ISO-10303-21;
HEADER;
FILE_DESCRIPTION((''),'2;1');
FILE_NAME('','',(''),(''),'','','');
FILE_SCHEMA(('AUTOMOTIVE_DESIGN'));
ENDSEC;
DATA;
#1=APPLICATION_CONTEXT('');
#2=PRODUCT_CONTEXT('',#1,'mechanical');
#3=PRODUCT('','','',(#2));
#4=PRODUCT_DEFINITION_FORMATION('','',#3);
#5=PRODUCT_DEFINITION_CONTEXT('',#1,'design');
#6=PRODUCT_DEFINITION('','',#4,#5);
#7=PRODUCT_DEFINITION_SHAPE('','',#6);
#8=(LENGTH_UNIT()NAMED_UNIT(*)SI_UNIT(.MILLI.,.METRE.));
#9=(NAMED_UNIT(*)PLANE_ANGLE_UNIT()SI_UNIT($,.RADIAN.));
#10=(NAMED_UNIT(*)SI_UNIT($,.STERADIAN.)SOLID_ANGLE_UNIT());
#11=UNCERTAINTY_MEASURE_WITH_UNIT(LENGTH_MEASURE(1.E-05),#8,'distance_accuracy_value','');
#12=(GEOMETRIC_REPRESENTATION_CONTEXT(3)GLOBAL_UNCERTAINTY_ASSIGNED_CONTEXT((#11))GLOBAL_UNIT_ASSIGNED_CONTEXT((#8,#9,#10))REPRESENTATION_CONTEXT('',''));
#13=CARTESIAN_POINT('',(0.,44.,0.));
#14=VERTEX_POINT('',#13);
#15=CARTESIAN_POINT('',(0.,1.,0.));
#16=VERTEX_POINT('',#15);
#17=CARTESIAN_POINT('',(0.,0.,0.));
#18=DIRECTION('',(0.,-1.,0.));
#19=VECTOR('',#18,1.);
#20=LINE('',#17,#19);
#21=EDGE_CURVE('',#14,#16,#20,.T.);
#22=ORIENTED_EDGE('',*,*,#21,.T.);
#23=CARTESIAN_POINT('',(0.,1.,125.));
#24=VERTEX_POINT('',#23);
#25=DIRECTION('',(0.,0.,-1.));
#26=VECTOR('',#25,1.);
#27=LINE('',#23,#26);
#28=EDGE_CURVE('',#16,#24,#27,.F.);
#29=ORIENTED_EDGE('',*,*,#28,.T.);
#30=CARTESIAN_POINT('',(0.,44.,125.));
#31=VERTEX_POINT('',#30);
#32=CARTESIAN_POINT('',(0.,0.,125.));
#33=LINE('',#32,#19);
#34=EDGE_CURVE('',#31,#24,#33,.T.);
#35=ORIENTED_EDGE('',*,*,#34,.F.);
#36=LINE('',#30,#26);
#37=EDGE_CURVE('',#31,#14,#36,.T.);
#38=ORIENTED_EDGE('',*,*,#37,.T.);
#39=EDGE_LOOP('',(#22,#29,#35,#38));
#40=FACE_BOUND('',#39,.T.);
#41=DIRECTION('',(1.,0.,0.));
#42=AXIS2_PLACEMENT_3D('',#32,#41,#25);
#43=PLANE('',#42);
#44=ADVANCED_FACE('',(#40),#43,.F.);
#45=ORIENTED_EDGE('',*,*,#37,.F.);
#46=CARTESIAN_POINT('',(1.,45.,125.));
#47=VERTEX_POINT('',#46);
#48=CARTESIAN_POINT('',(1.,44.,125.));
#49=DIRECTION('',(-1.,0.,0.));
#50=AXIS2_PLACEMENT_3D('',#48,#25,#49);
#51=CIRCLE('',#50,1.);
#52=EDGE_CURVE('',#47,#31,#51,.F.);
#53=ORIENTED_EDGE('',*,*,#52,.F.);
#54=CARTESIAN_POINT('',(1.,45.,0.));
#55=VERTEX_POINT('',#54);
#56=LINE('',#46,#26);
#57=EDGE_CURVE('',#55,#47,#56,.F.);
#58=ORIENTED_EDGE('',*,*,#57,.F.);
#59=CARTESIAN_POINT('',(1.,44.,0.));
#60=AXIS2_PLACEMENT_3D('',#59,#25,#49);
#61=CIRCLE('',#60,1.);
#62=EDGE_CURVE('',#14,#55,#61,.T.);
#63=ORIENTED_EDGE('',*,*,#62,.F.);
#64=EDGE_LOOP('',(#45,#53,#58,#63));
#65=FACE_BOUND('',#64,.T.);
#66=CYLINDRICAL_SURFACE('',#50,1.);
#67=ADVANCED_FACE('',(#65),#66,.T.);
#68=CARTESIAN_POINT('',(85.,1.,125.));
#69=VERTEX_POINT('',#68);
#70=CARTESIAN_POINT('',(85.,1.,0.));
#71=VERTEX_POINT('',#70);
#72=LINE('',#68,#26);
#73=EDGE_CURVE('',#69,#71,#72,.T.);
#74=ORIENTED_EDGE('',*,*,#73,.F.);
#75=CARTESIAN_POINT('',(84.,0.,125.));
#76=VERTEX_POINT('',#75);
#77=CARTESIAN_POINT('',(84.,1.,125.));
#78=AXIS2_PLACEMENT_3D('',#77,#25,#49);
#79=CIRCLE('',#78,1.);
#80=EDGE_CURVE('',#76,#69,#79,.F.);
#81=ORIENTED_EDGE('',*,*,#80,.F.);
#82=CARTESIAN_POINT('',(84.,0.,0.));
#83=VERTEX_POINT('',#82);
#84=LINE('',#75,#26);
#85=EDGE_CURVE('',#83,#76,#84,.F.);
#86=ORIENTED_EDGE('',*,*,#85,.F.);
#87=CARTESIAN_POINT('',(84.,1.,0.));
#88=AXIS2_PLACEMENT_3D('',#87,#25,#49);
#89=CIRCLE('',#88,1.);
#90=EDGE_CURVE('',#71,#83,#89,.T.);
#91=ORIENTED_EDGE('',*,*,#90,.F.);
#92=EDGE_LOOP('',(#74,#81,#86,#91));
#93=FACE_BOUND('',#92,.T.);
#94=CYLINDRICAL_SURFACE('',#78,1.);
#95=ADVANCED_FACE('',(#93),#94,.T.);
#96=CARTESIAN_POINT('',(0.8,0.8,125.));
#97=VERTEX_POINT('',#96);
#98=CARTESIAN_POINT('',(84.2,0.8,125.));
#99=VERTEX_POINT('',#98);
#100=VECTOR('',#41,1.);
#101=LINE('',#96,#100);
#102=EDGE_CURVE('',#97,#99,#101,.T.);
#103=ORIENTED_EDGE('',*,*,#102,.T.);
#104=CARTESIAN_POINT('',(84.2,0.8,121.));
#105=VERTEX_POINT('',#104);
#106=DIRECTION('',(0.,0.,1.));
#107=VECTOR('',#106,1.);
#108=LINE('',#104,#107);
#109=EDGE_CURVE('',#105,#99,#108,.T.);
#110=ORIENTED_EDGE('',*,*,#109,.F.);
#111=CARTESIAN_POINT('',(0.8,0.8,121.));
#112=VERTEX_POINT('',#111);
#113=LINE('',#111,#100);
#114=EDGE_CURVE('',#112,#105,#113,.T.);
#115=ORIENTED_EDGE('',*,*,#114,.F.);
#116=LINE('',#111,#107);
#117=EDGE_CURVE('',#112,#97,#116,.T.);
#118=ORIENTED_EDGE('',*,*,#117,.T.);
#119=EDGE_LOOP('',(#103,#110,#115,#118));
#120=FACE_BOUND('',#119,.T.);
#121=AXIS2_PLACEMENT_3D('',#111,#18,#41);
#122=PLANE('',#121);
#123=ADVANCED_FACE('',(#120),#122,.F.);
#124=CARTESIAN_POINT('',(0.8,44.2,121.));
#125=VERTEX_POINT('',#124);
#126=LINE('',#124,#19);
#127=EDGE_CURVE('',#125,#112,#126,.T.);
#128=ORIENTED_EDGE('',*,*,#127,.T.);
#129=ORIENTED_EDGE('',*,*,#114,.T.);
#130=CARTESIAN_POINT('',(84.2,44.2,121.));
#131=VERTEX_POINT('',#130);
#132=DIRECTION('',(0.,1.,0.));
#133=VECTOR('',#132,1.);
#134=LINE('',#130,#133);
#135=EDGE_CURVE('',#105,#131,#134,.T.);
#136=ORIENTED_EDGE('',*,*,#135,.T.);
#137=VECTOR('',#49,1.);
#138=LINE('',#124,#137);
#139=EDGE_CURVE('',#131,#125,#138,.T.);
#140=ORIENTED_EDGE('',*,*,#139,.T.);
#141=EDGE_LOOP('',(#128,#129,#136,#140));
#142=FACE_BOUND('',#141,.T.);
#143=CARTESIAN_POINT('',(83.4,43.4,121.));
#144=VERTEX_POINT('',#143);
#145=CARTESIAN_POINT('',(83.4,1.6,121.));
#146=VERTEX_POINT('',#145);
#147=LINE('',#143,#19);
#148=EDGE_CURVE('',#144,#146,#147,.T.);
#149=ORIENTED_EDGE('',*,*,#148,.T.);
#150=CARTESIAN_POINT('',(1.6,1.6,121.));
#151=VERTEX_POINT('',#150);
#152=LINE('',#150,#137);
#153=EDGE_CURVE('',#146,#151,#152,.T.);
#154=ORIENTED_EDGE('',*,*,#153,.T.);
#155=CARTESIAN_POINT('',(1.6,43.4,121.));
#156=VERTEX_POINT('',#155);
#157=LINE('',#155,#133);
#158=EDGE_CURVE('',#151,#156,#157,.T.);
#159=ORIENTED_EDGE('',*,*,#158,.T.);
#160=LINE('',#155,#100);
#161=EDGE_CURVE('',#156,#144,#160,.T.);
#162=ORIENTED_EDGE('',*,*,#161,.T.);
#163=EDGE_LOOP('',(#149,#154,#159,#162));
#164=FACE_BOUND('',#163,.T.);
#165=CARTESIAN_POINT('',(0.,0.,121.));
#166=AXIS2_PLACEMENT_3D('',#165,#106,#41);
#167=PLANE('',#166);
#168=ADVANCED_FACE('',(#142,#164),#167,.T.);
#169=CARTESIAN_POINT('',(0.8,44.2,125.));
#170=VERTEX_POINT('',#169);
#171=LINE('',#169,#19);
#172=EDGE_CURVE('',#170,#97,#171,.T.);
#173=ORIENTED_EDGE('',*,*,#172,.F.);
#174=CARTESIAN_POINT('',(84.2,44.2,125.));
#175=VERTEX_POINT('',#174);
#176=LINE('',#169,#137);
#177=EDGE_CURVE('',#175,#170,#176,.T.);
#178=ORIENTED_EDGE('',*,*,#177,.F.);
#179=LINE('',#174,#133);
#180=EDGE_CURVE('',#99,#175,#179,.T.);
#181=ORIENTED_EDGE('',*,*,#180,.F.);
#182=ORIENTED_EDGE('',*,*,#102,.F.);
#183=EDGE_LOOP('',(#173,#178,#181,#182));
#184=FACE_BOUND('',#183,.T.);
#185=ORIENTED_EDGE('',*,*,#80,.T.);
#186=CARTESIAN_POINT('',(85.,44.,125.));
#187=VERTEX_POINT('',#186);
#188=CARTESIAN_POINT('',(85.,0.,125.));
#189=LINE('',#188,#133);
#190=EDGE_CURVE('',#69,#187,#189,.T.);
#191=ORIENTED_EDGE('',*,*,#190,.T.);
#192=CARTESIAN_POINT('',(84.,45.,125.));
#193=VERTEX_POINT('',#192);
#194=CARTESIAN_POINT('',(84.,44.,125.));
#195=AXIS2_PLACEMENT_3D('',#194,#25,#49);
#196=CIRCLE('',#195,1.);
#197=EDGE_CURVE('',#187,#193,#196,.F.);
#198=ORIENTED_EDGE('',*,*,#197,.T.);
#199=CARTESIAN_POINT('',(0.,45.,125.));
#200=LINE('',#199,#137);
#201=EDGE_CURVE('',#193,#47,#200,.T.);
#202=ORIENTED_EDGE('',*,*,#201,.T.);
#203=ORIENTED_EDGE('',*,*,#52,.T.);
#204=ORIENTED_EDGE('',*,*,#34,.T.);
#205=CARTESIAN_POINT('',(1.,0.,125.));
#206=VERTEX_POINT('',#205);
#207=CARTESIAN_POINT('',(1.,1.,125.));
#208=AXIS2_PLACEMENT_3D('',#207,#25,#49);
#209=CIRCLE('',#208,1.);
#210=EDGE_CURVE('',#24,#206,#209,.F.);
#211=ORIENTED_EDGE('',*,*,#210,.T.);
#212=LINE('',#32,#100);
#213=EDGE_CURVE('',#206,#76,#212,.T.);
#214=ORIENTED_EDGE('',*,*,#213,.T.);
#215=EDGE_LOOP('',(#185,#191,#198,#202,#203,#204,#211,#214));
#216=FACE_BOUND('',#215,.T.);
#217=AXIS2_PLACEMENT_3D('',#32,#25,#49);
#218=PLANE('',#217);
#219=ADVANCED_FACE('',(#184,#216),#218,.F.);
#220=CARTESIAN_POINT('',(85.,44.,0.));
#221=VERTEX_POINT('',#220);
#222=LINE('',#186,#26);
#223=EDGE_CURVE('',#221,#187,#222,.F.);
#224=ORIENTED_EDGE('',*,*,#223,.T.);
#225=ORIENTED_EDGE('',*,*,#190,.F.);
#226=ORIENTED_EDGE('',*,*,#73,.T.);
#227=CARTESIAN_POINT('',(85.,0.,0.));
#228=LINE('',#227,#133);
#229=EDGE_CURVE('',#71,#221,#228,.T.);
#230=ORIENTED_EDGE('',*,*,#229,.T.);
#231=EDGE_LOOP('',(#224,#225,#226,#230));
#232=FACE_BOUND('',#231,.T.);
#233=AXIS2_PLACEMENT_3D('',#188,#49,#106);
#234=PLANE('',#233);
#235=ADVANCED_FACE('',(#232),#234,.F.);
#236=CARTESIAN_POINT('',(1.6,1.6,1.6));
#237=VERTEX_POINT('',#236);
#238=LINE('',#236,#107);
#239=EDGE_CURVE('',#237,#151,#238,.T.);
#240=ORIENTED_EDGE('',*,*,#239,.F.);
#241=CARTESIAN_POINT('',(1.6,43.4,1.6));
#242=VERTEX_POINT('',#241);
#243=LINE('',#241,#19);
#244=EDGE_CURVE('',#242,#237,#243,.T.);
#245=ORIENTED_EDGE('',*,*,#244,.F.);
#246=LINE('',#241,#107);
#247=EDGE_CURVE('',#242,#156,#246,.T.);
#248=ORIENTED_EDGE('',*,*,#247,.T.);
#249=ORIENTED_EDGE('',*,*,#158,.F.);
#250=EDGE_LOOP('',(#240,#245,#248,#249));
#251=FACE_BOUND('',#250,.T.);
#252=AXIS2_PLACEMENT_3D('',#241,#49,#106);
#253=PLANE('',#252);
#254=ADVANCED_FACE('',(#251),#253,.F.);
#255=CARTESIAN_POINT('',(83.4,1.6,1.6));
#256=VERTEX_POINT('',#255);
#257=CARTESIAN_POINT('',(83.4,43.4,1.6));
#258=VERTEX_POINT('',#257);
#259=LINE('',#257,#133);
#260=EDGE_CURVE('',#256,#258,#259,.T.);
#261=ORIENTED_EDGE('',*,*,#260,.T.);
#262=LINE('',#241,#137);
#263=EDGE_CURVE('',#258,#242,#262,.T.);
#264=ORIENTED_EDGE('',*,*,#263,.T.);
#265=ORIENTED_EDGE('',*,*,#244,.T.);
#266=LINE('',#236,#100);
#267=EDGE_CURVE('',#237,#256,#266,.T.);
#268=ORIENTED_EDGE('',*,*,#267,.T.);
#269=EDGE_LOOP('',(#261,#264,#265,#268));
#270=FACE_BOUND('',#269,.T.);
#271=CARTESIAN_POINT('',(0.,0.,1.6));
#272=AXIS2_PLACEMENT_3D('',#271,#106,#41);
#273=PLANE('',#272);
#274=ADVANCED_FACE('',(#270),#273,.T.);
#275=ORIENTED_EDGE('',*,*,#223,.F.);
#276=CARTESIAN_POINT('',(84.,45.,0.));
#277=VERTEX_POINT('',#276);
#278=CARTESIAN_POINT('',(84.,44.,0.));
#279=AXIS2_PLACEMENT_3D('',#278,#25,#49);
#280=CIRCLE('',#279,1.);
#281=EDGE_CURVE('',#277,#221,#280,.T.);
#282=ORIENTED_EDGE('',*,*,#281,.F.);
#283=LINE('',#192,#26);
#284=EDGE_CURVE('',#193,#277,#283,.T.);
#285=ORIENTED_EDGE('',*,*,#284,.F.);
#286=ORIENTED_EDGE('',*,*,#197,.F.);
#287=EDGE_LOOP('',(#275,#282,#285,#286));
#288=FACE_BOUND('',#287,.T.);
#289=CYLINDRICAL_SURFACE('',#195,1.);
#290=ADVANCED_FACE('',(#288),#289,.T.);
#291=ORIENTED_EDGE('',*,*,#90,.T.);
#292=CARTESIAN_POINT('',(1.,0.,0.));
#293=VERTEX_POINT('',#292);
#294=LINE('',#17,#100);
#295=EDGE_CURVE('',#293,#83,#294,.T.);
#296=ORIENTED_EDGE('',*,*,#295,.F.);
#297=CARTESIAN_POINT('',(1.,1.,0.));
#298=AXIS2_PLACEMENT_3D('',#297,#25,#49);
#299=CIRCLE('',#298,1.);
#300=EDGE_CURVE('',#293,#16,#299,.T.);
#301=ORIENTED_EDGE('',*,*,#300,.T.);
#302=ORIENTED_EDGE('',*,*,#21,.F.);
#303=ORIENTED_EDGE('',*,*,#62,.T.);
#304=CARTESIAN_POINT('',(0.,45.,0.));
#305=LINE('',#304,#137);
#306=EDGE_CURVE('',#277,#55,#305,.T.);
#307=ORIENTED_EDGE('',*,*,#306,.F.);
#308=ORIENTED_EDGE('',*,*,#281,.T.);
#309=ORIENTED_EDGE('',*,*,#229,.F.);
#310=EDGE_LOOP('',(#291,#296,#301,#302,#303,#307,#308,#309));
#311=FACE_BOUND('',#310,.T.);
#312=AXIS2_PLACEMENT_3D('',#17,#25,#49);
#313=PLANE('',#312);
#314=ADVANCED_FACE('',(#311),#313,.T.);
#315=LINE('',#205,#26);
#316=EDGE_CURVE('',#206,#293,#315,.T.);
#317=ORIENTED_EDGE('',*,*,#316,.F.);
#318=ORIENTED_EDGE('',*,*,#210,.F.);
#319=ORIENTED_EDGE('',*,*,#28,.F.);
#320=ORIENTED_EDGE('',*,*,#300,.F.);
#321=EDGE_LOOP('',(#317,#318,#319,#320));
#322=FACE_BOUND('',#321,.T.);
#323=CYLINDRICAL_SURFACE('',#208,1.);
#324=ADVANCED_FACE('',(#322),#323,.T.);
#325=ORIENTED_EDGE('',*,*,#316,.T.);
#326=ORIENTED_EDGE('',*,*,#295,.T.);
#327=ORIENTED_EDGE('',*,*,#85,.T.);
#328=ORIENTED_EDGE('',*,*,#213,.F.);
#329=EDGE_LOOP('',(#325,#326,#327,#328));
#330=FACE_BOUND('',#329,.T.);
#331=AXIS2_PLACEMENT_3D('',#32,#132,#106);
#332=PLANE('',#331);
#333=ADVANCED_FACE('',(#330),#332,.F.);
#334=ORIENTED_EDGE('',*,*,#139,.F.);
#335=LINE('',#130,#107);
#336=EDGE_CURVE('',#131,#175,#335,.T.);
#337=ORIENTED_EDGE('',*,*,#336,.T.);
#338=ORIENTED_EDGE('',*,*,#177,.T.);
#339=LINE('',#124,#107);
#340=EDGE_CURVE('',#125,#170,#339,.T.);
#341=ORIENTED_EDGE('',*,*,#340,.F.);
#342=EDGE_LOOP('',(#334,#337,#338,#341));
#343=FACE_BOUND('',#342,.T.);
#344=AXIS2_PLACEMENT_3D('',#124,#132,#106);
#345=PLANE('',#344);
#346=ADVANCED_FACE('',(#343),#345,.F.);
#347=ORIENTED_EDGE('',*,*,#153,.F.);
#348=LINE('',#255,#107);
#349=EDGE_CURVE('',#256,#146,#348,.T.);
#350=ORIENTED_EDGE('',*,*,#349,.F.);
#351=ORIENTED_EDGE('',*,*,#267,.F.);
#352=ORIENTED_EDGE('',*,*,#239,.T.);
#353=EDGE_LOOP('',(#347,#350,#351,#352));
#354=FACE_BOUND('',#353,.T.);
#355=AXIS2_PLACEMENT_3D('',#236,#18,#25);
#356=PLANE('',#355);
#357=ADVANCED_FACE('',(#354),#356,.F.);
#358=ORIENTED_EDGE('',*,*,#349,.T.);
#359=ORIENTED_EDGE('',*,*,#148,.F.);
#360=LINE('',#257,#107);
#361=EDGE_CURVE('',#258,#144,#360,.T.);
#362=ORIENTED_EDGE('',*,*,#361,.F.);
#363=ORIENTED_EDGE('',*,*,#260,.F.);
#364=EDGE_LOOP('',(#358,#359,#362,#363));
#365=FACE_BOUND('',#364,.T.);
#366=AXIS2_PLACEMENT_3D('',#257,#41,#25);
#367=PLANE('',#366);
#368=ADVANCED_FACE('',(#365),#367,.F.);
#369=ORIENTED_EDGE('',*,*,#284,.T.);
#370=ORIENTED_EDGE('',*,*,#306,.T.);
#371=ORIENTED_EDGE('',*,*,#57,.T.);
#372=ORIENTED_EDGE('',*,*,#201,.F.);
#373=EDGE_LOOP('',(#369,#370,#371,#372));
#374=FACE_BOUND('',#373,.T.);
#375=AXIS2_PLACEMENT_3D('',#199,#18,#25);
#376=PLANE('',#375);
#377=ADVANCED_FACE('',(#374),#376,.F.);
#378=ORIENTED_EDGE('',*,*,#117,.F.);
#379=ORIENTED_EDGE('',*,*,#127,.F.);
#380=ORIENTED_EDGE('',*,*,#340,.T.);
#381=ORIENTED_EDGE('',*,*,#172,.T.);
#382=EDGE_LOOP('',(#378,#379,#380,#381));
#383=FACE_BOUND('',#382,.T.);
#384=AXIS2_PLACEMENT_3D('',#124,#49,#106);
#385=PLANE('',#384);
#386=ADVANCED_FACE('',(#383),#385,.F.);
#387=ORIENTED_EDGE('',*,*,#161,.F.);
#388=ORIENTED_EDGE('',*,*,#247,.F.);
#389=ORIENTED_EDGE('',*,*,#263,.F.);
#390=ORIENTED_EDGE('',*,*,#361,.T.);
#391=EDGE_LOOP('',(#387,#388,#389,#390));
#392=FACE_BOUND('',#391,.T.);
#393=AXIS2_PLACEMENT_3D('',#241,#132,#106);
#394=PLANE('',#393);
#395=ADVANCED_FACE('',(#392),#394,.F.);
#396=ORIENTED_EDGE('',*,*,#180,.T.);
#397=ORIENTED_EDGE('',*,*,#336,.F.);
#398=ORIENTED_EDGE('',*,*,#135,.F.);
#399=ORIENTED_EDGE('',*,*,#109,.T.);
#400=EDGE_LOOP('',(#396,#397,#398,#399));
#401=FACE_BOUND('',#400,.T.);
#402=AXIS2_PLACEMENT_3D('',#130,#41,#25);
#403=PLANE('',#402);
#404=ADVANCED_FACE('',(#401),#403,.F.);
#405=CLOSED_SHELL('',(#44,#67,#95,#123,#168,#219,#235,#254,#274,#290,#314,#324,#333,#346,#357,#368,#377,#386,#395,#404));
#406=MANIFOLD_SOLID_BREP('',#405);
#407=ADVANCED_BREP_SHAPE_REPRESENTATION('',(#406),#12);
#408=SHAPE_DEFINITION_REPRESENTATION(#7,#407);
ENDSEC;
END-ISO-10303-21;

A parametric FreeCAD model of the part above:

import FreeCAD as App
import Part
import Sketcher
from FreeCAD import Vector
Q = App.Units.Quantity


def edges_at(feature, points):
    """Names of the edges that pass closest to the given points."""
    edges = feature.Shape.Edges
    near = lambda p: min(range(len(edges)), key=lambda i: edges[i].distToShape(Part.Vertex(*p))[0])
    return sorted({f"Edge{near(p) + 1}" for p in points})


def add_polygon(sketch, points):
    """Adds a closed chain of lines whose ends are joined by coincident constraints."""
    first, n = sketch.GeometryCount, len(points)
    for a, b in zip(points, points[1:] + points[:1]):
        sketch.addGeometry(Part.LineSegment(App.Vector(*a, 0), App.Vector(*b, 0)), False)
    for i in range(n):
        sketch.addConstraint(Sketcher.Constraint("Coincident", first + i, 2, first + (i + 1) % n, 1))

doc = App.newDocument("Part")
body = doc.addObject("PartDesign::Body", "Body")

sketch1 = body.newObject("Sketcher::SketchObject", "Sketch")
sketch1.AttachmentSupport = (doc.getObject("XY_Plane"), [""])
sketch1.MapMode = "FlatFace"
add_polygon(sketch1, [(0, 45), (0, 0), (85, 0), (85, 45)])
sketch1.addConstraint(Sketcher.Constraint("Vertical", 0))
sketch1.addConstraint(Sketcher.Constraint("Horizontal", 1))
sketch1.addConstraint(Sketcher.Constraint("Vertical", 2))
sketch1.addConstraint(Sketcher.Constraint("Horizontal", 3))
sketch1.addConstraint(Sketcher.Constraint("Coincident", 0, 2, -1, 1))
sketch1.addConstraint(Sketcher.Constraint("DistanceX", 1, 1, 1, 2, Q("85 mm")))
sketch1.addConstraint(Sketcher.Constraint("DistanceY", 0, 2, 0, 1, Q("45 mm")))
pad1 = body.newObject("PartDesign::Pad", "Pad")
pad1.Profile = sketch1
pad1.Length = 125

sketch2 = body.newObject("Sketcher::SketchObject", "Sketch001")
sketch2.AttachmentSupport = (doc.getObject("XY_Plane"), [""])
sketch2.MapMode = "FlatFace"
sketch2.AttachmentOffset = App.Placement(Vector(0, 0, 125), App.Rotation())
add_polygon(sketch2, [(2, 43), (2, 2), (83, 2), (83, 43)])
sketch2.addConstraint(Sketcher.Constraint("Vertical", 0))
sketch2.addConstraint(Sketcher.Constraint("Horizontal", 1))
sketch2.addConstraint(Sketcher.Constraint("Vertical", 2))
sketch2.addConstraint(Sketcher.Constraint("Horizontal", 3))
sketch2.addConstraint(Sketcher.Constraint("DistanceX", 1, 1, 1, 2, Q("81.8 mm")))
sketch2.addConstraint(Sketcher.Constraint("DistanceY", 0, 2, 0, 1, Q("41.8 mm")))
sketch2.addConstraint(Sketcher.Constraint("DistanceX", -1, 1, 0, 2, Q("1.6 mm")))
sketch2.addConstraint(Sketcher.Constraint("DistanceY", -1, 1, 0, 2, Q("1.6 mm")))
pocket1 = body.newObject("PartDesign::Pocket", "Pocket")
pocket1.Profile = sketch2
pocket1.Length = 123.4

sketch3 = body.newObject("Sketcher::SketchObject", "Sketch002")
sketch3.AttachmentSupport = (doc.getObject("XY_Plane"), [""])
sketch3.MapMode = "FlatFace"
sketch3.AttachmentOffset = App.Placement(Vector(0, 0, 125), App.Rotation())
add_polygon(sketch3, [(1, 44), (1, 1), (84, 1), (84, 44)])
sketch3.addConstraint(Sketcher.Constraint("Vertical", 0))
sketch3.addConstraint(Sketcher.Constraint("Horizontal", 1))
sketch3.addConstraint(Sketcher.Constraint("Vertical", 2))
sketch3.addConstraint(Sketcher.Constraint("Horizontal", 3))
sketch3.addConstraint(Sketcher.Constraint("DistanceX", 1, 1, 1, 2, Q("83.4 mm")))
sketch3.addConstraint(Sketcher.Constraint("DistanceY", 0, 2, 0, 1, Q("43.4 mm")))
sketch3.addConstraint(Sketcher.Constraint("DistanceX", -1, 1, 0, 2, Q("0.8 mm")))
sketch3.addConstraint(Sketcher.Constraint("DistanceY", -1, 1, 0, 2, Q("0.8 mm")))
pocket2 = body.newObject("PartDesign::Pocket", "Pocket001")
pocket2.Profile = sketch3
pocket2.Length = 4
doc.recompute()

fillet = body.newObject("PartDesign::Fillet", "Fillet")
fillet.Base = (pocket2, edges_at(pocket2, [
    (0, 45, 62.5),
    (85, 45, 62.5),
    (85, 0, 62.5),
    (0, 0, 62.5),
]))
fillet.Radius = 1

doc.recompute()
